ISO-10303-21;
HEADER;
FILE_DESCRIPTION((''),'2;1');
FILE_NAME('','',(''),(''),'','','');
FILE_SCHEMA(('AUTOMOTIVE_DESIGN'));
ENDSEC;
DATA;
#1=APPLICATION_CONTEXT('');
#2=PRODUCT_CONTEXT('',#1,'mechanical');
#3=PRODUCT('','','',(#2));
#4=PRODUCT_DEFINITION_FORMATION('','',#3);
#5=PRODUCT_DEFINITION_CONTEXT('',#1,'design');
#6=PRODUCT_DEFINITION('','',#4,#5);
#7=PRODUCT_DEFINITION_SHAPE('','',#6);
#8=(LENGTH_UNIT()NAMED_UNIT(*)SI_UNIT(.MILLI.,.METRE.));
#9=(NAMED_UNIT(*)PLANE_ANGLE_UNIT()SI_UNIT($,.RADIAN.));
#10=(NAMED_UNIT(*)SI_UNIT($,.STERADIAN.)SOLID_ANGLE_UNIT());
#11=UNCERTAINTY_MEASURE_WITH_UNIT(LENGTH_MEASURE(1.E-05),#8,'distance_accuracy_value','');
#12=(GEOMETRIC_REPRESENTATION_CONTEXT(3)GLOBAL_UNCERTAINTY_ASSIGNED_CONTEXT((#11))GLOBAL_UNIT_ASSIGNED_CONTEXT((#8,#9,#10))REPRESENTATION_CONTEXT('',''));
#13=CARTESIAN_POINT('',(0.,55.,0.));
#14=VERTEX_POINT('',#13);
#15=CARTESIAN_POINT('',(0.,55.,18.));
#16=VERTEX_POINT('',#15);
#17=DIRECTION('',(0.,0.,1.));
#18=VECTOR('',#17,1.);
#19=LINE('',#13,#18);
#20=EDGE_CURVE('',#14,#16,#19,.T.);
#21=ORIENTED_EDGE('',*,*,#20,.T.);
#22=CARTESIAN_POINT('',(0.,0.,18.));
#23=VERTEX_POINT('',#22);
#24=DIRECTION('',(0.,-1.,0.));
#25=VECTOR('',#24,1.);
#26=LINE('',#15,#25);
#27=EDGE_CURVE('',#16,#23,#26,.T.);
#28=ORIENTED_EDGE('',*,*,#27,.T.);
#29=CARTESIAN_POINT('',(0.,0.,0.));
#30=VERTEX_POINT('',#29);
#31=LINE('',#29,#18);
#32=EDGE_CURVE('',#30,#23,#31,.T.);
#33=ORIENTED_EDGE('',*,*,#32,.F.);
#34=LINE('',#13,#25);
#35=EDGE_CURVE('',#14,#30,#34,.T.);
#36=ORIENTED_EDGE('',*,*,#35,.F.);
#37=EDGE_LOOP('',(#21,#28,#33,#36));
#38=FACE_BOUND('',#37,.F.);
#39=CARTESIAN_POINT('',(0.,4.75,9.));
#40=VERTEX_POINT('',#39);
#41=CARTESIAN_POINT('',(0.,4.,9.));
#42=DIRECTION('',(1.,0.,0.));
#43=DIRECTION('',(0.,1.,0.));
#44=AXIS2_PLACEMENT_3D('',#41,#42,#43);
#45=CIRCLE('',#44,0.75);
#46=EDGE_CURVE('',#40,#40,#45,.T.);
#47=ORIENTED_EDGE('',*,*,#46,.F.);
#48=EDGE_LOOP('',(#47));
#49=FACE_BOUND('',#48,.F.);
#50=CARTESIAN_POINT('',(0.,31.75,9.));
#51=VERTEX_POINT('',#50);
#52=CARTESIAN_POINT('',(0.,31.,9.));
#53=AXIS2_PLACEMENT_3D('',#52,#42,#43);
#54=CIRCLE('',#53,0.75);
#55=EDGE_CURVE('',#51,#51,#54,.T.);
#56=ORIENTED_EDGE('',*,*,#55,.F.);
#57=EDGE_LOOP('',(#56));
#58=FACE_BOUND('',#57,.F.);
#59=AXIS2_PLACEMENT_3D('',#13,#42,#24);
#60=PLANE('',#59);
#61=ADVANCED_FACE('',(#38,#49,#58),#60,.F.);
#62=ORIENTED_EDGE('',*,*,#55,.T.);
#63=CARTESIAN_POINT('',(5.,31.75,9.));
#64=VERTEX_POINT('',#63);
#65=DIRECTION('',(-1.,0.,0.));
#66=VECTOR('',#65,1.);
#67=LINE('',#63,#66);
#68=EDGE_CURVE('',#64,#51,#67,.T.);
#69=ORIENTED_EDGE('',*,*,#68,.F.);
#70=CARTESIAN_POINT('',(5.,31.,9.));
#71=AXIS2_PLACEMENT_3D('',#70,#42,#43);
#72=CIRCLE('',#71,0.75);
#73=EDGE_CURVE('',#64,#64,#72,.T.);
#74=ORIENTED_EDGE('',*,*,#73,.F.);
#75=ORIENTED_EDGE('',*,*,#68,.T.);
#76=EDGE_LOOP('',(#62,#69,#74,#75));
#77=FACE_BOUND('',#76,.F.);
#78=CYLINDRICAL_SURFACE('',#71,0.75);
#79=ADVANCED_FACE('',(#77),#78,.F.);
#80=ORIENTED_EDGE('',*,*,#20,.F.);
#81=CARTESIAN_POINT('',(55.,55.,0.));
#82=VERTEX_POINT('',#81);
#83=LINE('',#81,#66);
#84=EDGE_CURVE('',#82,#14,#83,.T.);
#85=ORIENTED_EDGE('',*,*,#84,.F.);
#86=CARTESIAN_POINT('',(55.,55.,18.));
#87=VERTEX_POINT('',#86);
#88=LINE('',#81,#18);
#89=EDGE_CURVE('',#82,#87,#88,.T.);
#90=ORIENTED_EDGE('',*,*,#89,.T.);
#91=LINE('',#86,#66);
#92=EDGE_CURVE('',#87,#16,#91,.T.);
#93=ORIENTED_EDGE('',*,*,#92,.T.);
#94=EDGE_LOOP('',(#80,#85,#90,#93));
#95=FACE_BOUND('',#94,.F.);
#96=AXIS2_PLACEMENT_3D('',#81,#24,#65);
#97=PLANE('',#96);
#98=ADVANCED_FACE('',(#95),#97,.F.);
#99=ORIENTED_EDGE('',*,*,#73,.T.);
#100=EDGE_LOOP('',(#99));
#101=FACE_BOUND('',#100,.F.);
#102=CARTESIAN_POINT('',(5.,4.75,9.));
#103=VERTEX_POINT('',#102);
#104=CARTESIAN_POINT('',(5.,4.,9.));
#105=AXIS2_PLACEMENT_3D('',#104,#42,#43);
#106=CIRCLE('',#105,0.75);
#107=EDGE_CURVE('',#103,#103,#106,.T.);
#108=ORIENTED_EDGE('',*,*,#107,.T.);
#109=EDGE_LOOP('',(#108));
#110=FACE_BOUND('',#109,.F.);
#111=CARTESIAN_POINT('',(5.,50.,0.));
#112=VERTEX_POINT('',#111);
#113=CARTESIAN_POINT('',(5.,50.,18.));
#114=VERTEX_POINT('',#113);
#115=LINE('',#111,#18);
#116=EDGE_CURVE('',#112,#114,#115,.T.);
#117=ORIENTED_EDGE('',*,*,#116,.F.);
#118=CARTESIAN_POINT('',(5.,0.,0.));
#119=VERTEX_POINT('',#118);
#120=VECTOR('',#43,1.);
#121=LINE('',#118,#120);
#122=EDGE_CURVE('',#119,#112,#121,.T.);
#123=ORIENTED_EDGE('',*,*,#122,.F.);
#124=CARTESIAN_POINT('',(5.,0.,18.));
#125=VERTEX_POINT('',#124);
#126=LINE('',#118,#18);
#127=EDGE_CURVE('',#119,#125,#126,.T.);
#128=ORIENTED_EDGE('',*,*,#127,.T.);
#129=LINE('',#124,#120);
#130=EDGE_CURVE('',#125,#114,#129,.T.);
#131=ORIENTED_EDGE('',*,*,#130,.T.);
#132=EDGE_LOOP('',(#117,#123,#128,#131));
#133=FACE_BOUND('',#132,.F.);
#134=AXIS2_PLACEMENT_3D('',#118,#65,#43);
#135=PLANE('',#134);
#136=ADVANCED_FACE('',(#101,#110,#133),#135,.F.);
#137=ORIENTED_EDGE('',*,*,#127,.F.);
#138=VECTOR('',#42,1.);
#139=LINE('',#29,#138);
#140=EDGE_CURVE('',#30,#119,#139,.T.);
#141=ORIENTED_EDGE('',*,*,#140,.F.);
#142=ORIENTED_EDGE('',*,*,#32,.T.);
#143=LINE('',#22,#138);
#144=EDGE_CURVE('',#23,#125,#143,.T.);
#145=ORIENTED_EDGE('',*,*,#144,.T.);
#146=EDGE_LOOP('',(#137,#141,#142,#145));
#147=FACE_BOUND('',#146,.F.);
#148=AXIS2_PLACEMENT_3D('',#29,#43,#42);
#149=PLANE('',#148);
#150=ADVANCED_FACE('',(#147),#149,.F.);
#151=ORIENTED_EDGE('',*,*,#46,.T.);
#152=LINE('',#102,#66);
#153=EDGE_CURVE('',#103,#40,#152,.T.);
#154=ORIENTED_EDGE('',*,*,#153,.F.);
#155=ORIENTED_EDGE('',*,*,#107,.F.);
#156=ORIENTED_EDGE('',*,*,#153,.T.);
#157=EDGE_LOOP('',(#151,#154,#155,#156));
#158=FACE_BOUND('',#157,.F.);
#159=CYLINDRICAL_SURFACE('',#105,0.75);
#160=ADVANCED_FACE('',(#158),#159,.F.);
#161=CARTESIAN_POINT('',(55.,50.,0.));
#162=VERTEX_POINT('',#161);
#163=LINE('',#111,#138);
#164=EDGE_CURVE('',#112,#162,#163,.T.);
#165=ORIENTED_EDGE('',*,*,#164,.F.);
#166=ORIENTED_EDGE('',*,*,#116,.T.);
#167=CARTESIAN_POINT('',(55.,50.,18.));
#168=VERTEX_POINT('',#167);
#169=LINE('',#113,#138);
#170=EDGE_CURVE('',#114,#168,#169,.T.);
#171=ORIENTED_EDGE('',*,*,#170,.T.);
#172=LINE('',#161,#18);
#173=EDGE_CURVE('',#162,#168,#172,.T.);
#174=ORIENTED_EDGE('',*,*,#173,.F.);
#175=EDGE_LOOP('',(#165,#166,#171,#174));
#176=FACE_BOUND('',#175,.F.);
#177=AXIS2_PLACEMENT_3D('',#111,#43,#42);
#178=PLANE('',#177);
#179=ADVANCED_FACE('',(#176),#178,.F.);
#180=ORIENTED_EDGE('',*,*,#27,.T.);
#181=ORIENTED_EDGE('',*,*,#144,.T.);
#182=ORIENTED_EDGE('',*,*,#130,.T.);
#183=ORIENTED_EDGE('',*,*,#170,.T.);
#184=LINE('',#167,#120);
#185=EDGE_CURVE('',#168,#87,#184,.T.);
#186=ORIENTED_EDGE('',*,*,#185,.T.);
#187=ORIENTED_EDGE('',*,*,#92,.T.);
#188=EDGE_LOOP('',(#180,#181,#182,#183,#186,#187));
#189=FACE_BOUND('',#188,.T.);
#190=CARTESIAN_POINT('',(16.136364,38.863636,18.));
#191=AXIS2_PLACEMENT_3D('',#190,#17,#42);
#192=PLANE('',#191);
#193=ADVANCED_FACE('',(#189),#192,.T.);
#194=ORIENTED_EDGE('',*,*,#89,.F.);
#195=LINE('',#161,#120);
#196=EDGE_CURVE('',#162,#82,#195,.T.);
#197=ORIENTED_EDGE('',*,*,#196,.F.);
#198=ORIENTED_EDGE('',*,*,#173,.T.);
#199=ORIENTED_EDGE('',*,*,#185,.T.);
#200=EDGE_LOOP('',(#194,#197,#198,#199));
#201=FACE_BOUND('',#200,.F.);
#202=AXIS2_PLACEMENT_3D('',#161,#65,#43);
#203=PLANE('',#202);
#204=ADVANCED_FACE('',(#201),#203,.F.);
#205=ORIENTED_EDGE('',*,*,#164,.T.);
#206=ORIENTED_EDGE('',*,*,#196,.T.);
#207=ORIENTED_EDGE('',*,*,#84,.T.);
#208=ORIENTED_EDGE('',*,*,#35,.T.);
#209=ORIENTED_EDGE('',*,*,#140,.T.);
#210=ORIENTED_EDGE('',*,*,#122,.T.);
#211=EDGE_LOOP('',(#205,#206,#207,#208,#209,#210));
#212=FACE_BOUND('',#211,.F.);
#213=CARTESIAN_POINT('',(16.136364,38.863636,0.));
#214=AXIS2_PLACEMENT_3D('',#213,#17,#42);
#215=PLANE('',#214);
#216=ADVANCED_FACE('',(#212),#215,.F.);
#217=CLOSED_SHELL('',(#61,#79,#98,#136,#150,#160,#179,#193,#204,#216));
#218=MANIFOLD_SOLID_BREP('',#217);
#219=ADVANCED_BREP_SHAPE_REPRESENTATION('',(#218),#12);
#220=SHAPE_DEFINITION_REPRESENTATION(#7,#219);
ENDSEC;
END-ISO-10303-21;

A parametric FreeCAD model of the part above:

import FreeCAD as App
import Part
import Sketcher
from FreeCAD import Vector
Q = App.Units.Quantity


def add_polygon(sketch, points):
    """Adds a closed chain of lines whose ends are joined by coincident constraints."""
    first, n = sketch.GeometryCount, len(points)
    for a, b in zip(points, points[1:] + points[:1]):
        sketch.addGeometry(Part.LineSegment(App.Vector(*a, 0), App.Vector(*b, 0)), False)
    for i in range(n):
        sketch.addConstraint(Sketcher.Constraint("Coincident", first + i, 2, first + (i + 1) % n, 1))

doc = App.newDocument("Part")
body = doc.addObject("PartDesign::Body", "Body")

# Sketch on XY plane
sketch1 = body.newObject("Sketcher::SketchObject", "Sketch")
sketch1.AttachmentSupport = (doc.getObject("XY_Plane"), [""])
sketch1.MapMode = "FlatFace"
add_polygon(sketch1, [(5, 0), (5, 50), (55, 50), (55, 55), (0, 55), (0, 0)])  # lines 0-5
sketch1.addConstraint([
    Sketcher.Constraint("Vertical", 0),
    Sketcher.Constraint("Horizontal", 1),
    Sketcher.Constraint("Vertical", 2),
    Sketcher.Constraint("Horizontal", 3),
    Sketcher.Constraint("Vertical", 4),
    Sketcher.Constraint("Horizontal", 5),
    Sketcher.Constraint("Coincident", 4, 2, -1, 1),
    Sketcher.Constraint("Equal", 1, 0),
    Sketcher.Constraint("Equal", 5, 2),
    Sketcher.Constraint("DistanceX", 1, 1, 1, 2, Q("50 mm")),
    Sketcher.Constraint("DistanceX", 3, 2, 3, 1, Q("55 mm")),
])
pad1 = body.newObject("PartDesign::Pad", "Pad")
pad1.Profile = sketch1
pad1.Length = 18

# Sketch on YZ plane
sketch2 = body.newObject("Sketcher::SketchObject", "Sketch001")
sketch2.AttachmentSupport = (doc.getObject("YZ_Plane"), [""])
sketch2.MapMode = "FlatFace"
sketch2.AttachmentOffset = App.Placement(Vector(0, 0, 5), App.Rotation())
sketch2.addGeometry([
    Part.Circle(Vector(4, 9, 0), Vector(0, 0, 1), 0.8),
    Part.Circle(Vector(31, 9, 0), Vector(0, 0, 1), 0.8),
], False)
sketch2.addConstraint([
    Sketcher.Constraint("Equal", 0, 1),
    Sketcher.Constraint("Horizontal", 0, 3, 1, 3),
    Sketcher.Constraint("Diameter", 0, Q("1.5 mm")),
    Sketcher.Constraint("DistanceX", -1, 1, 0, 3, Q("4 mm")),
    Sketcher.Constraint("DistanceY", -1, 1, 0, 3, Q("9 mm")),
    Sketcher.Constraint("DistanceX", -1, 1, 1, 3, Q("31 mm")),
])
pocket1 = body.newObject("PartDesign::Pocket", "Pocket")
pocket1.Profile = sketch2
pocket1.Type = "ThroughAll"

doc.recompute()
